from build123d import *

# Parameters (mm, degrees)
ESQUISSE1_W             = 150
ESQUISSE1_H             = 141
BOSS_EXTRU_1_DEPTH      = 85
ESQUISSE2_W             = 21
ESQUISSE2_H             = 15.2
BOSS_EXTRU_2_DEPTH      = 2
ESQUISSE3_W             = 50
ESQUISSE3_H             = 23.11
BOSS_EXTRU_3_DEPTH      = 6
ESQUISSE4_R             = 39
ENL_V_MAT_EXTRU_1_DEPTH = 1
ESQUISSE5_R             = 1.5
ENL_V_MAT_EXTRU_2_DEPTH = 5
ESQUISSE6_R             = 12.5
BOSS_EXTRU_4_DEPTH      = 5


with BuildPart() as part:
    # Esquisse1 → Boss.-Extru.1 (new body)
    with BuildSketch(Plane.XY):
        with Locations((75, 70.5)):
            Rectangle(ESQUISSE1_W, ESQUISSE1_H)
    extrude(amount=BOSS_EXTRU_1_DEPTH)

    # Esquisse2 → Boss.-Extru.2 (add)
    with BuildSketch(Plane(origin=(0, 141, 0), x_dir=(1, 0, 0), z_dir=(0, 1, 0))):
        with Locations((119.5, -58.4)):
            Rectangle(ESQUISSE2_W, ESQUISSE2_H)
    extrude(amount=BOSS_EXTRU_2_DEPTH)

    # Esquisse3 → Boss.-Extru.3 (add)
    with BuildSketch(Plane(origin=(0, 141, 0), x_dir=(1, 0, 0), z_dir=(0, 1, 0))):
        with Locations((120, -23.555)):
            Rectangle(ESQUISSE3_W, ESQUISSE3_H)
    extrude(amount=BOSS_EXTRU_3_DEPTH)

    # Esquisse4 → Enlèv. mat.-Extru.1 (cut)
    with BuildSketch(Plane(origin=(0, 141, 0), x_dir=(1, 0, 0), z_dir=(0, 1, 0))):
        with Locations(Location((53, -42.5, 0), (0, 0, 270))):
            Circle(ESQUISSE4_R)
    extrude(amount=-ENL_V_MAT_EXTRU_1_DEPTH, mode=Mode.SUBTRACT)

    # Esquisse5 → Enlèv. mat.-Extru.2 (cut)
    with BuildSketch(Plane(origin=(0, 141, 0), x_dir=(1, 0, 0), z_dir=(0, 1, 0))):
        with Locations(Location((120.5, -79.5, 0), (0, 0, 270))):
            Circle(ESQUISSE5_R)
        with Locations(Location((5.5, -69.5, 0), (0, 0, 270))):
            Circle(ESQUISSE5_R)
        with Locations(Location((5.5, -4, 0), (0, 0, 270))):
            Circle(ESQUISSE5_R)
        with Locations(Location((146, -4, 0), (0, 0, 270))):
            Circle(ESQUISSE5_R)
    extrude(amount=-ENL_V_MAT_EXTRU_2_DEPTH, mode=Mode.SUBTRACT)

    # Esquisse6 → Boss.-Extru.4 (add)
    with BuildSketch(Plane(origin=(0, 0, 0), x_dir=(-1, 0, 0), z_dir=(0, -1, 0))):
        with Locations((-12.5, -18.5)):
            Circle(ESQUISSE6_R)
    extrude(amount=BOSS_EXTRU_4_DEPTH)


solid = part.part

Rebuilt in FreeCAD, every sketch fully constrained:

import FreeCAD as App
import Part
import Sketcher

V = App.Vector
Q = App.Units.Quantity


def add_polygon(sketch, points):
    """Adds a closed chain of lines whose ends are joined by coincident constraints."""
    first, n = sketch.GeometryCount, len(points)
    for a, b in zip(points, points[1:] + points[:1]):
        sketch.addGeometry(Part.LineSegment(App.Vector(*a, 0), App.Vector(*b, 0)), False)
    for i in range(n):
        sketch.addConstraint(Sketcher.Constraint("Coincident", first + i, 2, first + (i + 1) % n, 1))

doc = App.newDocument("Part")
body = doc.addObject("PartDesign::Body", "Body")

sketch1 = body.newObject("Sketcher::SketchObject", "Sketch")
sketch1.AttachmentSupport = (doc.getObject("XY_Plane"), [""])
sketch1.MapMode = "FlatFace"
add_polygon(sketch1, [(0, 141), (0, 0), (150, 0), (150, 141)])
sketch1.addConstraint([
    Sketcher.Constraint("Vertical", 0),
    Sketcher.Constraint("Horizontal", 1),
    Sketcher.Constraint("Vertical", 2),
    Sketcher.Constraint("Horizontal", 3),
    Sketcher.Constraint("Coincident", 0, 2, -1, 1),
    Sketcher.Constraint("DistanceX", 1, 1, 1, 2, Q("150 mm")),
    Sketcher.Constraint("DistanceY", 0, 2, 0, 1, Q("141 mm")),
])
pad1 = body.newObject("PartDesign::Pad", "Pad")
pad1.Profile = sketch1
pad1.Length = 85

sketch2 = body.newObject("Sketcher::SketchObject", "Sketch001")
sketch2.AttachmentSupport = (doc.getObject("XZ_Plane"), [""])
sketch2.MapMode = "FlatFace"
sketch2.AttachmentOffset = App.Placement(V(0, 0, -141), App.Rotation())
add_polygon(sketch2, [(109, 51), (109, 66), (130, 66), (130, 51)])
sketch2.addConstraint([
    Sketcher.Constraint("Vertical", 0),
    Sketcher.Constraint("Horizontal", 1),
    Sketcher.Constraint("Vertical", 2),
    Sketcher.Constraint("Horizontal", 3),
    Sketcher.Constraint("DistanceX", 1, 1, 1, 2, Q("21 mm")),
    Sketcher.Constraint("DistanceY", 0, 1, 0, 2, Q("15.2 mm")),
    Sketcher.Constraint("DistanceX", -1, 1, 0, 2, Q("109 mm")),
    Sketcher.Constraint("DistanceY", -1, 1, 0, 2, Q("66 mm")),
])
pad2 = body.newObject("PartDesign::Pad", "Pad001")
pad2.Profile = sketch2
pad2.Length = 2
pad2.Reversed = True

sketch3 = body.newObject("Sketcher::SketchObject", "Sketch002")
sketch3.AttachmentSupport = (doc.getObject("XZ_Plane"), [""])
sketch3.MapMode = "FlatFace"
sketch3.AttachmentOffset = App.Placement(V(0, 0, -141), App.Rotation())
add_polygon(sketch3, [(95, 12), (95, 35), (145, 35), (145, 12)])
sketch3.addConstraint([
    Sketcher.Constraint("Vertical", 0),
    Sketcher.Constraint("Horizontal", 1),
    Sketcher.Constraint("Vertical", 2),
    Sketcher.Constraint("Horizontal", 3),
    Sketcher.Constraint("DistanceX", 1, 1, 1, 2, Q("50 mm")),
    Sketcher.Constraint("DistanceX", -1, 1, 0, 2, Q("95 mm")),
    Sketcher.Constraint("DistanceY", -1, 1, 2, 2, Q("12 mm")),
    Sketcher.Constraint("DistanceY", 0, 1, 0, 2, Q("23.11 mm")),
])
pad3 = body.newObject("PartDesign::Pad", "Pad002")
pad3.Profile = sketch3
pad3.Length = 6
pad3.Reversed = True

sketch4 = body.newObject("Sketcher::SketchObject", "Sketch003")
sketch4.AttachmentSupport = (doc.getObject("XZ_Plane"), [""])
sketch4.MapMode = "FlatFace"
sketch4.AttachmentOffset = App.Placement(V(0, 0, -141), App.Rotation())
sketch4.addGeometry(Part.Circle(V(53, 42, 0), V(0, 0, 1), 39), False)
sketch4.addConstraint([
    Sketcher.Constraint("Diameter", 0, Q("78 mm")),
    Sketcher.Constraint("DistanceX", -1, 1, 0, 3, Q("53 mm")),
    Sketcher.Constraint("DistanceY", -1, 1, 0, 3, Q("42.5 mm")),
])
pocket1 = body.newObject("PartDesign::Pocket", "Pocket")
pocket1.Profile = sketch4
pocket1.Length = 1
pocket1.Reversed = True

sketch5 = body.newObject("Sketcher::SketchObject", "Sketch004")
sketch5.AttachmentSupport = (doc.getObject("XZ_Plane"), [""])
sketch5.MapMode = "FlatFace"
sketch5.AttachmentOffset = App.Placement(V(0, 0, -141), App.Rotation())
sketch5.addGeometry([
    Part.Circle(V(120.5, 79.5, 0), V(0, 0, 1), 1.5),
    Part.Circle(V(5.5, 69.5, 0), V(0, 0, 1), 1.5),
    Part.Circle(V(5.5, 4, 0), V(0, 0, 1), 1.5),
    Part.Circle(V(146, 4, 0), V(0, 0, 1), 1.5),
], False)
sketch5.addConstraint([
    Sketcher.Constraint("Equal", 0, 1),
    Sketcher.Constraint("Equal", 1, 2),
    Sketcher.Constraint("Equal", 2, 3),
    Sketcher.Constraint("Horizontal", 2, 3, 3, 3),
    Sketcher.Constraint("Vertical", 1, 3, 2, 3),
    Sketcher.Constraint("Diameter", 0, Q("3 mm")),
    Sketcher.Constraint("DistanceY", -1, 1, 2, 3, Q("4 mm")),
    Sketcher.Constraint("DistanceX", -1, 1, 3, 3, Q("146 mm")),
    Sketcher.Constraint("DistanceX", 1, 3, 0, 3, Q("115 mm")),
    Sketcher.Constraint("DistanceY", 1, 3, 0, 3, Q("10 mm")),
    Sketcher.Constraint("DistanceX", -1, 1, 0, 3, Q("120.5 mm")),
    Sketcher.Constraint("DistanceY", -1, 1, 0, 3, Q("79.5 mm")),
])
pocket2 = body.newObject("PartDesign::Pocket", "Pocket001")
pocket2.Profile = sketch5
pocket2.Length = 5
pocket2.Reversed = True

sketch6 = body.newObject("Sketcher::SketchObject", "Sketch005")
sketch6.AttachmentSupport = (doc.getObject("XZ_Plane"), [""])
sketch6.MapMode = "FlatFace"
sketch6.addGeometry(Part.Circle(V(12, 18, 0), V(0, 0, 1), 12), False)
sketch6.addConstraint([
    Sketcher.Constraint("Diameter", 0, Q("25 mm")),
    Sketcher.Constraint("DistanceX", -1, 1, 0, 3, Q("12.5 mm")),
    Sketcher.Constraint("DistanceY", -1, 1, 0, 3, Q("18.5 mm")),
])
pad4 = body.newObject("PartDesign::Pad", "Pad003")
pad4.Profile = sketch6
pad4.Length = 5

doc.recompute()
